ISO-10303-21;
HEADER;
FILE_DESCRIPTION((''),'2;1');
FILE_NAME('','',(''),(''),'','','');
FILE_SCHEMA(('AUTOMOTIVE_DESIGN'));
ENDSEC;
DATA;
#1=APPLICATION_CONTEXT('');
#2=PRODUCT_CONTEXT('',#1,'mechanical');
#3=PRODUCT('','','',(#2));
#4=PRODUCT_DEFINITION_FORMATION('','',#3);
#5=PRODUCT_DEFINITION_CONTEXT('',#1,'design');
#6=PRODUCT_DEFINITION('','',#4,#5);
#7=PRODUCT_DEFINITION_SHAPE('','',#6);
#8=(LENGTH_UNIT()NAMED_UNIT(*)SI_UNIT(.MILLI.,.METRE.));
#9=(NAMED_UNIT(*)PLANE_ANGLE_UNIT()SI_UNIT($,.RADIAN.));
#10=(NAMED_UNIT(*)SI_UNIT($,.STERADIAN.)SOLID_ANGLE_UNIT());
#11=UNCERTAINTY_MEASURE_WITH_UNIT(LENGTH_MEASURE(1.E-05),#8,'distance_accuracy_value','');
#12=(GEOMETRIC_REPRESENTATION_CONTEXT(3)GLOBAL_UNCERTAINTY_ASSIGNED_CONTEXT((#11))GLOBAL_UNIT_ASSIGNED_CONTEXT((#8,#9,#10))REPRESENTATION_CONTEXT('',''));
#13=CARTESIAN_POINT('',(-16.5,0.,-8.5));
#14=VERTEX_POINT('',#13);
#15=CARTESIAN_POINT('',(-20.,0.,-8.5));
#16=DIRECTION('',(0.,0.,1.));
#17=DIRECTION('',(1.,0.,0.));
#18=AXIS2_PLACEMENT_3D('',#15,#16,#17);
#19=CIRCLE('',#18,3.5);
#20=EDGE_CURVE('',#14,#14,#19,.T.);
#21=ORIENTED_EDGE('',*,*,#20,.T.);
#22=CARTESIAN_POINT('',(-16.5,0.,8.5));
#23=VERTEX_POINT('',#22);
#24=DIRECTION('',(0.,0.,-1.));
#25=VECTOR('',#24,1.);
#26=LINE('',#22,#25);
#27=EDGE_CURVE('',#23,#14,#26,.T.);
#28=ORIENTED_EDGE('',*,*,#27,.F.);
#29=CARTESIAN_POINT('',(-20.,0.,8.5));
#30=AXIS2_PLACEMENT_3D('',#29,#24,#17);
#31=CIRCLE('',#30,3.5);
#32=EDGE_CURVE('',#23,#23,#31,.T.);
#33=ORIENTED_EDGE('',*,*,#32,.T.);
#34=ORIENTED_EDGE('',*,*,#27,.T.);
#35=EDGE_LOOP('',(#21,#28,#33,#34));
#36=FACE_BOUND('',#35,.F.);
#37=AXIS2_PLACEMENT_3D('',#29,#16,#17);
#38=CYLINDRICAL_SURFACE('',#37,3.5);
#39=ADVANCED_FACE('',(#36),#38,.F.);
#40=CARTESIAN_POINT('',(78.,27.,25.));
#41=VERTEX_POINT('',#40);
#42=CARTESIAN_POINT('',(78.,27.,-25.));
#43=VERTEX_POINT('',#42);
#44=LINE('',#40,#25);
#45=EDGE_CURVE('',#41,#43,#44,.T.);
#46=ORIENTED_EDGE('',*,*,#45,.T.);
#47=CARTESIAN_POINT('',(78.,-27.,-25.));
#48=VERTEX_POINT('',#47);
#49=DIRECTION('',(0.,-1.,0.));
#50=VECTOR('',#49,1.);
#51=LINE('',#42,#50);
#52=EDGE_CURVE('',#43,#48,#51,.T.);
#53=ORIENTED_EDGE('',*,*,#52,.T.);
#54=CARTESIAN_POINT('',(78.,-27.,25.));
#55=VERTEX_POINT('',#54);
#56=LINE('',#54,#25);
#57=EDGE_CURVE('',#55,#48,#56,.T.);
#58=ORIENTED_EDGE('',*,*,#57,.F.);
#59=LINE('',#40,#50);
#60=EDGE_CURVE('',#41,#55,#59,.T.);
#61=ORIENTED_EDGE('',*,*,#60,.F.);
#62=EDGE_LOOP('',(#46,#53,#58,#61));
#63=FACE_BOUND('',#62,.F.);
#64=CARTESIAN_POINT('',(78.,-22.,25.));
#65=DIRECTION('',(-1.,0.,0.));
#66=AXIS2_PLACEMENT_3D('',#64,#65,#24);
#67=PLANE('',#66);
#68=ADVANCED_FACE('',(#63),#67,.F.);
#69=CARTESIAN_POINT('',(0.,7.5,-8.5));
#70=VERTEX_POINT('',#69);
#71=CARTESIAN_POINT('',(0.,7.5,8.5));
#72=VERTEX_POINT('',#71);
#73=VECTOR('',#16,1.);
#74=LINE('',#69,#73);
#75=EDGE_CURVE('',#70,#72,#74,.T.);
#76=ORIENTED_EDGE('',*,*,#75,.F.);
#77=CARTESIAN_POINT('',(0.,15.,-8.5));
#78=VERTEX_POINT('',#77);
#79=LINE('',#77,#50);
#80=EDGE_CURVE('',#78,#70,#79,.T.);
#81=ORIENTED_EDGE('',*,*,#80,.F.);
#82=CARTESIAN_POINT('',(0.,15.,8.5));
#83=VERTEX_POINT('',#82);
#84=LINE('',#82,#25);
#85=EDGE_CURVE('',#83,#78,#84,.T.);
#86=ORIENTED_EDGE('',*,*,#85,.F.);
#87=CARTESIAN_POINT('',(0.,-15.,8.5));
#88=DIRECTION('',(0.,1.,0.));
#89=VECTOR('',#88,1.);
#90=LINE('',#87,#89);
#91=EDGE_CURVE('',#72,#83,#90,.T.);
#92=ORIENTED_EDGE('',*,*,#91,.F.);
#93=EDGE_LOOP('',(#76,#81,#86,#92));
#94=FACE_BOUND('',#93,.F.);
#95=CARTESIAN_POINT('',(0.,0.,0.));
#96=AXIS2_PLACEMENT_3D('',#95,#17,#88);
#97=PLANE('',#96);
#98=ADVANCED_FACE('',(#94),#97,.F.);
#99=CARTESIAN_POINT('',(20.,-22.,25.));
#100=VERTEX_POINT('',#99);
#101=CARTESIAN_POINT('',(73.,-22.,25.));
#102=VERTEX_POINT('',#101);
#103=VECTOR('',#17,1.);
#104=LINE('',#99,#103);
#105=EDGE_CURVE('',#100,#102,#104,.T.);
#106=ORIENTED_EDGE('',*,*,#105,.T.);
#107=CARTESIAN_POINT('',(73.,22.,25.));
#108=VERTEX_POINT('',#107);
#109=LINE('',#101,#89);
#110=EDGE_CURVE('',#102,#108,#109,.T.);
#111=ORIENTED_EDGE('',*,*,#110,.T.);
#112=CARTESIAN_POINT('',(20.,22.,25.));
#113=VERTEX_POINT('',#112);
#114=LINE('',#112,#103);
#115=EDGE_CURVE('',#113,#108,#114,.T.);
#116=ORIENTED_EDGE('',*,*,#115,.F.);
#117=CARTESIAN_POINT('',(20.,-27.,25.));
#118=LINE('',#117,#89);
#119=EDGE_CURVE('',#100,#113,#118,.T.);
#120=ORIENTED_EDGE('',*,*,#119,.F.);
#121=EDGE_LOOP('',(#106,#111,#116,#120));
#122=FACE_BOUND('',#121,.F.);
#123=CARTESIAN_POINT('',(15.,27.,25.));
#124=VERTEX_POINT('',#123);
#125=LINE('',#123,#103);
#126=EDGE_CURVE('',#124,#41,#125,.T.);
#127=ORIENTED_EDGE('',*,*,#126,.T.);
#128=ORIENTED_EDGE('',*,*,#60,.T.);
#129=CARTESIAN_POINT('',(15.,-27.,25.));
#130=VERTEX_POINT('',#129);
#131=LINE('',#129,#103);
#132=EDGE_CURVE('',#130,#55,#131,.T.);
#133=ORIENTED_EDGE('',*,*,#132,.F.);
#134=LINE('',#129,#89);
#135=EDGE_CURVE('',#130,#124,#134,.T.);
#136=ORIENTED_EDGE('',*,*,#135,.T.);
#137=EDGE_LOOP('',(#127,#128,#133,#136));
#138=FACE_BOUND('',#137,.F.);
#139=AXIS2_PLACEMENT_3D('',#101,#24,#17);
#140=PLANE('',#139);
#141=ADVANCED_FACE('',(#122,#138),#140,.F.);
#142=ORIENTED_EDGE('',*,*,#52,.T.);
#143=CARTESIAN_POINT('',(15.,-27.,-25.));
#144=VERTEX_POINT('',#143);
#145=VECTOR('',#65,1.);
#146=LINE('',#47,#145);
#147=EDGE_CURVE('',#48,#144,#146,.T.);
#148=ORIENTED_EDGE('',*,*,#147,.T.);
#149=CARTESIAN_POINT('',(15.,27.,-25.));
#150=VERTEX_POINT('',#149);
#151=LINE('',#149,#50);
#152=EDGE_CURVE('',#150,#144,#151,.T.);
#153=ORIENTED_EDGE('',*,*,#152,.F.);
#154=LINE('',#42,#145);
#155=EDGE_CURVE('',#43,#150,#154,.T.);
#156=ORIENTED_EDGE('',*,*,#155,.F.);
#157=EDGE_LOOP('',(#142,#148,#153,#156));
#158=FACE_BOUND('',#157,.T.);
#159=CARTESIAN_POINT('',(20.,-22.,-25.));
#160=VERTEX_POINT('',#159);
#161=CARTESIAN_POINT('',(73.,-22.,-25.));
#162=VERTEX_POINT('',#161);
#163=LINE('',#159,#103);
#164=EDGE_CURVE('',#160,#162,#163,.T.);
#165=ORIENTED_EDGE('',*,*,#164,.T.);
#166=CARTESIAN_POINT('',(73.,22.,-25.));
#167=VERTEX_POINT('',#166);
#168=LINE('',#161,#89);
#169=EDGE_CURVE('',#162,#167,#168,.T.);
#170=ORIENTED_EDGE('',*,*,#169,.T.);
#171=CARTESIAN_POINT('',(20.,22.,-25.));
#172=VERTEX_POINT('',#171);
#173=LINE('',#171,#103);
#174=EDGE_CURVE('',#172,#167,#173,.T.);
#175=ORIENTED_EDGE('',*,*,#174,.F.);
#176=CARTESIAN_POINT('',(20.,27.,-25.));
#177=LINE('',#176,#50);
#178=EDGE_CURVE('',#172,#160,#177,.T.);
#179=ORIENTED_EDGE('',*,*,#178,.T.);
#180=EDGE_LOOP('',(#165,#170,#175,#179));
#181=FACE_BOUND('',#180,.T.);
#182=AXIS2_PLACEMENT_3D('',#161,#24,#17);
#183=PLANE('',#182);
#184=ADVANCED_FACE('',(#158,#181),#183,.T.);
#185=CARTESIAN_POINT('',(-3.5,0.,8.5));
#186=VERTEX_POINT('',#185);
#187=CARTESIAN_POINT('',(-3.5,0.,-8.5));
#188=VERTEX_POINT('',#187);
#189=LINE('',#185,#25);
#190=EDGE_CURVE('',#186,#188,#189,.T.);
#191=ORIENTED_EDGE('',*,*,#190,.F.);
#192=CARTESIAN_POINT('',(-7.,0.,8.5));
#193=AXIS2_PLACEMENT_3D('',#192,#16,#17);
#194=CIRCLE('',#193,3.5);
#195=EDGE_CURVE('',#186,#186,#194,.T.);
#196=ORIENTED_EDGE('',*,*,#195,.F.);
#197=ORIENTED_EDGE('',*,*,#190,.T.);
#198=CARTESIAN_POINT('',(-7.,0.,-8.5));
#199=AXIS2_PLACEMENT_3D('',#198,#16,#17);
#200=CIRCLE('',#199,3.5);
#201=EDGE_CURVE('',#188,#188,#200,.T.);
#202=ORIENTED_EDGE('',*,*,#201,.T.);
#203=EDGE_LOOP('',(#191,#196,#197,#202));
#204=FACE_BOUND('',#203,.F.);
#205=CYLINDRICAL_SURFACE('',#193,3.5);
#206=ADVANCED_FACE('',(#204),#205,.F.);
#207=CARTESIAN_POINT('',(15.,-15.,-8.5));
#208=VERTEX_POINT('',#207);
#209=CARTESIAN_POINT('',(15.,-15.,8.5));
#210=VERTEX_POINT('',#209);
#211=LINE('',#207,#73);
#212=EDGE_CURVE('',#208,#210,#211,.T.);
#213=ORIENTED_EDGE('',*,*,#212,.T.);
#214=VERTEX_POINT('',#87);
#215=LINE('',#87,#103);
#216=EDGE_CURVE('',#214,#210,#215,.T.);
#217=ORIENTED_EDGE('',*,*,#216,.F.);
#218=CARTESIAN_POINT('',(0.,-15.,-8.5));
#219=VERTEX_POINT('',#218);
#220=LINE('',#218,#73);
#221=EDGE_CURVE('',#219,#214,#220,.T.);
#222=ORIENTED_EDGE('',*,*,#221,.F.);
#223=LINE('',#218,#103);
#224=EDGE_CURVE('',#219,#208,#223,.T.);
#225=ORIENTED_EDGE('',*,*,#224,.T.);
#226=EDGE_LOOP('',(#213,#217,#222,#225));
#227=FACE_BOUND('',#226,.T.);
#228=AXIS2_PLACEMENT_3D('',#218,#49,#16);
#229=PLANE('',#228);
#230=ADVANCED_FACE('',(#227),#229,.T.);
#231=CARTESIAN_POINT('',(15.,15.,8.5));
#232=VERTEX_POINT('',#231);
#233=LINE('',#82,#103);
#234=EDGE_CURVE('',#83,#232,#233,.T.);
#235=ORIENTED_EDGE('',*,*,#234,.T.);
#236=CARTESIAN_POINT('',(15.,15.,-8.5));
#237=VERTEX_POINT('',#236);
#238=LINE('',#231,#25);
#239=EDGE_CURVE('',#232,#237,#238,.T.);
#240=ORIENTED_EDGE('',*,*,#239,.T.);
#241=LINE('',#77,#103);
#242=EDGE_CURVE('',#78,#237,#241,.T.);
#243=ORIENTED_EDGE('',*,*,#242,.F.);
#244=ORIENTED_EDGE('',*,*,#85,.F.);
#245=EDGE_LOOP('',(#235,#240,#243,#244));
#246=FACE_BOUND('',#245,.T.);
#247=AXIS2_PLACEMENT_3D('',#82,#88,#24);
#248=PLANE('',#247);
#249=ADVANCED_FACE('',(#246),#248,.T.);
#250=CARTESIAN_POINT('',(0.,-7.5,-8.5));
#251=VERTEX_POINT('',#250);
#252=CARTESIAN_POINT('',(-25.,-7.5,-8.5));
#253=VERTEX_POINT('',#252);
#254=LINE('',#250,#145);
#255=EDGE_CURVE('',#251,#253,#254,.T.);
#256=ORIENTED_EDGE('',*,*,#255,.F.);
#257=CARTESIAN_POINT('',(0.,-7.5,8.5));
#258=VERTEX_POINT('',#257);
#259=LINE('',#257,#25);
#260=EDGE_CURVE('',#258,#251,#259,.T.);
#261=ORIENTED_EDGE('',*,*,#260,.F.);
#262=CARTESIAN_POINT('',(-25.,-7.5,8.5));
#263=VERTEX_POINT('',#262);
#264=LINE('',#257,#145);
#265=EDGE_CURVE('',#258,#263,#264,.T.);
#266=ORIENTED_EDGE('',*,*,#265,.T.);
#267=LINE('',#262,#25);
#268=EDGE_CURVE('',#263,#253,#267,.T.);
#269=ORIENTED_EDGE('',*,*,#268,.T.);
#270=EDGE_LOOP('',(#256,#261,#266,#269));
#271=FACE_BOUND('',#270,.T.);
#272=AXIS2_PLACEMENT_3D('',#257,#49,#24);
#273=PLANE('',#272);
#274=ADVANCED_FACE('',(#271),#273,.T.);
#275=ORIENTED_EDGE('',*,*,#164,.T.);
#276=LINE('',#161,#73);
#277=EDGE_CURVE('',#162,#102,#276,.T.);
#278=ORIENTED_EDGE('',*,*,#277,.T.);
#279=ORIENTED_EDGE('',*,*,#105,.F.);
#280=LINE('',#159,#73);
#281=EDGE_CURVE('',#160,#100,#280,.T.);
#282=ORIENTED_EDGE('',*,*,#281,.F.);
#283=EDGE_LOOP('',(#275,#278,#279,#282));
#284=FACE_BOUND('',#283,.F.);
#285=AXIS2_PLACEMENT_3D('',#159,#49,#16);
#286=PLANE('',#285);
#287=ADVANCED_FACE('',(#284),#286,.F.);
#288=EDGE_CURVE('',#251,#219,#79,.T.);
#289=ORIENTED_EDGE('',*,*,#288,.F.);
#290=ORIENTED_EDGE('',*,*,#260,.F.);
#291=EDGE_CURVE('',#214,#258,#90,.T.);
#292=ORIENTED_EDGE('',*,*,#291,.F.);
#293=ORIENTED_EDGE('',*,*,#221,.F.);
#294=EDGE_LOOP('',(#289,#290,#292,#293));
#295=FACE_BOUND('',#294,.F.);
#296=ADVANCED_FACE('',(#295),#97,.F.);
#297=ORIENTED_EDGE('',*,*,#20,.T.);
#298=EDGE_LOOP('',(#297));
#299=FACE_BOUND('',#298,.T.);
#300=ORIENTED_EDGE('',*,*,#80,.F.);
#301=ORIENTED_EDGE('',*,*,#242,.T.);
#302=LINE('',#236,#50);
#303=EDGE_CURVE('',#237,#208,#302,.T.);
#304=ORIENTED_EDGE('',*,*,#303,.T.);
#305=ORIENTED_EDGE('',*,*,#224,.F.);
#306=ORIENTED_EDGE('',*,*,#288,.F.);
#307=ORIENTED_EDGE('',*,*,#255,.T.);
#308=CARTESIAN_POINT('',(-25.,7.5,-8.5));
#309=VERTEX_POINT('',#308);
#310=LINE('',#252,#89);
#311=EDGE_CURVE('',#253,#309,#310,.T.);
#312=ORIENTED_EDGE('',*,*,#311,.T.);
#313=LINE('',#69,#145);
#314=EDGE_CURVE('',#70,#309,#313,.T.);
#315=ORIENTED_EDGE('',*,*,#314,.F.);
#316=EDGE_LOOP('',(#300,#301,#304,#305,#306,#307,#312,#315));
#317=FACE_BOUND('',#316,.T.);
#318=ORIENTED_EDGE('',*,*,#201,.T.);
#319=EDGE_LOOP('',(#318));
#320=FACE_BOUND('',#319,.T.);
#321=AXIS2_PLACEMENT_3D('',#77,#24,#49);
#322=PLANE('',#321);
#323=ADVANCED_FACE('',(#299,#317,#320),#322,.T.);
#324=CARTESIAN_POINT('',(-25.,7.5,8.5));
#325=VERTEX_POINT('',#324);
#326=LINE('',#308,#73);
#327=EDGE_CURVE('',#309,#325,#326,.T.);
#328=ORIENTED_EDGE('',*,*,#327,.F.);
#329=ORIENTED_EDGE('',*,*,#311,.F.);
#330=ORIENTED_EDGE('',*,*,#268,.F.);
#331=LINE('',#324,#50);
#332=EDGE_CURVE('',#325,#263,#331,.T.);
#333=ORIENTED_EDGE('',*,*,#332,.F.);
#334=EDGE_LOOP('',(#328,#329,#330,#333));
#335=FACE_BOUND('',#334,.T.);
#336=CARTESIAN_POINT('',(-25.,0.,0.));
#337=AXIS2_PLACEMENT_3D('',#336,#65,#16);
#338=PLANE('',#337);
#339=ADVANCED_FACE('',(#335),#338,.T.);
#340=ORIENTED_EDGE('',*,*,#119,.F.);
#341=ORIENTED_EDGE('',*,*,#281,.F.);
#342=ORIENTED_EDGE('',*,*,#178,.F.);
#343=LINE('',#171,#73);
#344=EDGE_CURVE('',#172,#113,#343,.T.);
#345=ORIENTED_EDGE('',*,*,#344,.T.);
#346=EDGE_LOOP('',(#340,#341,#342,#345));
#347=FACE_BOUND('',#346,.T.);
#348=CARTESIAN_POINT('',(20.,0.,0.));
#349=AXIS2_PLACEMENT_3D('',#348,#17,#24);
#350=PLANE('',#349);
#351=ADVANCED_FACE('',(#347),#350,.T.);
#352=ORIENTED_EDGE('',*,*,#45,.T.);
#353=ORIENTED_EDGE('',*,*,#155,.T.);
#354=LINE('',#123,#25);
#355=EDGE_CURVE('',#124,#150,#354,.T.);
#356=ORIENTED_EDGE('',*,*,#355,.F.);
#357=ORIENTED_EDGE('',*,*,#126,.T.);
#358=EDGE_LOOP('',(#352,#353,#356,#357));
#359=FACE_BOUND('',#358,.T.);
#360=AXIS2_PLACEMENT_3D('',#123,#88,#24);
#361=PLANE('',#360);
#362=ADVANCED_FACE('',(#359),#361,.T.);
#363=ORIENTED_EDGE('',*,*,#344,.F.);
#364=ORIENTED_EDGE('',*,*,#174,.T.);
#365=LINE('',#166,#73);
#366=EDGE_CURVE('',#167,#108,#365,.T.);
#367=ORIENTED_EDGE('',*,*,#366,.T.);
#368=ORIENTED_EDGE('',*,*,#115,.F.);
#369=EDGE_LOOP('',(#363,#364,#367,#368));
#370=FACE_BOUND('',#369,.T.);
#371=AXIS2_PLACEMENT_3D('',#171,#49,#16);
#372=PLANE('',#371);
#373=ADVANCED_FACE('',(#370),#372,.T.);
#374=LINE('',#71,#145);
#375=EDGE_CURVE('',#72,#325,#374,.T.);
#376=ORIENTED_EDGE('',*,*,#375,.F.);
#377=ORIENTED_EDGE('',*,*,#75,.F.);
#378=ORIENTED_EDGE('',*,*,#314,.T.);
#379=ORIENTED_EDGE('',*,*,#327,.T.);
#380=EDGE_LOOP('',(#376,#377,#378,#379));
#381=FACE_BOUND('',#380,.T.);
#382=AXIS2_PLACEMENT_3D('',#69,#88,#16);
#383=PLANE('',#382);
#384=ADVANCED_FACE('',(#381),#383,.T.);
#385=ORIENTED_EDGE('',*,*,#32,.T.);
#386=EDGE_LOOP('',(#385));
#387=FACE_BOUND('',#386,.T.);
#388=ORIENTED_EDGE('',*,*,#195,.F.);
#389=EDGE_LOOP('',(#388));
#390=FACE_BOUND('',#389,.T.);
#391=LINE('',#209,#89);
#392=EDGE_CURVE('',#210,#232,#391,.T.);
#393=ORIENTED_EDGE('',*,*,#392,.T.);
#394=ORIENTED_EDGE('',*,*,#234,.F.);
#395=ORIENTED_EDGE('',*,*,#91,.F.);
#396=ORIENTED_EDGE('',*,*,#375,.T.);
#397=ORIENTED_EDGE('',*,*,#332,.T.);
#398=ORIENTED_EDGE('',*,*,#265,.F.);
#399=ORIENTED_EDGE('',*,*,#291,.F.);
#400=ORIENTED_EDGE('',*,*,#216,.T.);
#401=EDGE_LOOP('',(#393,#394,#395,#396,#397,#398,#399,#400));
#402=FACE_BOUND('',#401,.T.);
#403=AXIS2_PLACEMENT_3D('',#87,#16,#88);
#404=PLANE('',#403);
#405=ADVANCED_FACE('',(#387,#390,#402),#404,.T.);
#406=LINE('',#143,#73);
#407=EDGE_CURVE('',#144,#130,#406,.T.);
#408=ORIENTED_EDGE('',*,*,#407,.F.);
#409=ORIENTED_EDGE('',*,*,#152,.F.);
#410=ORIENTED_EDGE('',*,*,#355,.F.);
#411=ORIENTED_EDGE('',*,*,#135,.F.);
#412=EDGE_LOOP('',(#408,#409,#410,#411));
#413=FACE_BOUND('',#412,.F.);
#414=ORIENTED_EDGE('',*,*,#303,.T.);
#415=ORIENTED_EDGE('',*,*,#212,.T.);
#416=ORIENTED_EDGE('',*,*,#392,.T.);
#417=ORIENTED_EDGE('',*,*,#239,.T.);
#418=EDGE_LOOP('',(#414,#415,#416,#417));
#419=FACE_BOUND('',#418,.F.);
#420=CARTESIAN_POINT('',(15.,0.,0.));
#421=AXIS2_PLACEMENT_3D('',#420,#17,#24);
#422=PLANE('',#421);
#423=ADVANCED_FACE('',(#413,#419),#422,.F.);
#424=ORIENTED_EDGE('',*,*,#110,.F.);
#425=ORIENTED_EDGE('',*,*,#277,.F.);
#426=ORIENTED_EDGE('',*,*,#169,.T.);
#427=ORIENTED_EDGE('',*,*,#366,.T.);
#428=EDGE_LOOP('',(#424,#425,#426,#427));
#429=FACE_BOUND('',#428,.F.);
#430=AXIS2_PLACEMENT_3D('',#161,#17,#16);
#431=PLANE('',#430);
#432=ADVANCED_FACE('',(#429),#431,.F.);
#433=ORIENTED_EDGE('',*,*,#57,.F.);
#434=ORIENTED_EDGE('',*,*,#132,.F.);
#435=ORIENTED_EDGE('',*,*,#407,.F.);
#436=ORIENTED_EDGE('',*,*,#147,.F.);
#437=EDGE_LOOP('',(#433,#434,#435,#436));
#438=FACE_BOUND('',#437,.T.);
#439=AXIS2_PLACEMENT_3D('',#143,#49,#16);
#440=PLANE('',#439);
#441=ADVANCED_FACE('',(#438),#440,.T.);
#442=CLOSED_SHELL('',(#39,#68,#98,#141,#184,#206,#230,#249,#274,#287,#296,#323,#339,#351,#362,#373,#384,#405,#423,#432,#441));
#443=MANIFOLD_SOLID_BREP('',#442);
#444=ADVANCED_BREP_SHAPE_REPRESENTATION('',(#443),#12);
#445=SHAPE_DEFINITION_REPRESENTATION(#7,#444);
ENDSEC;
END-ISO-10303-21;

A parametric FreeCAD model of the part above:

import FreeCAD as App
import Part
import Sketcher


def add_polygon(sketch, points):
    """Adds a closed chain of lines whose ends are joined by coincident constraints."""
    first, n = sketch.GeometryCount, len(points)
    for a, b in zip(points, points[1:] + points[:1]):
        sketch.addGeometry(Part.LineSegment(App.Vector(*a, 0), App.Vector(*b, 0)), False)
    for i in range(n):
        sketch.addConstraint(Sketcher.Constraint("Coincident", first + i, 2, first + (i + 1) % n, 1))

doc = App.newDocument("Part")
body = doc.addObject("PartDesign::Body", "Body")

# Sketch on YZ plane
sketch1 = body.newObject("Sketcher::SketchObject", "Sketch")
sketch1.AttachmentSupport = (doc.getObject("YZ_Plane"), [""])
sketch1.MapMode = "FlatFace"
add_polygon(sketch1, [(15, 8), (-15, 8), (-15, -8), (15, -8)])  # lines 0-3
sketch1.addConstraint([
    Sketcher.Constraint("Horizontal", 0),
    Sketcher.Constraint("Vertical", 1),
    Sketcher.Constraint("Horizontal", 2),
    Sketcher.Constraint("Vertical", 3),
    Sketcher.Constraint("Symmetric", 0, 2, 2, 2, -1, 1),
    Sketcher.Constraint("DistanceX", 0, 2, 0, 1, 30.0),
    Sketcher.Constraint("DistanceY", 1, 2, 1, 1, 17.0),
])
pad1 = body.newObject("PartDesign::Pad", "Pad")
pad1.Profile = sketch1
pad1.Length = 15

# Sketch on YZ plane
sketch2 = body.newObject("Sketcher::SketchObject", "Sketch001")
sketch2.AttachmentSupport = (doc.getObject("YZ_Plane"), [""])
sketch2.MapMode = "FlatFace"
add_polygon(sketch2, [(8, 8), (8, -8), (-8, -8), (-8, 8)])  # lines 0-3
sketch2.addConstraint([
    Sketcher.Constraint("Vertical", 0),
    Sketcher.Constraint("Horizontal", 1),
    Sketcher.Constraint("Vertical", 2),
    Sketcher.Constraint("Horizontal", 3),
    Sketcher.Constraint("Symmetric", 0, 2, 2, 2, -1, 1),
    Sketcher.Constraint("DistanceX", 1, 2, 1, 1, 15.0),
    Sketcher.Constraint("DistanceY", 0, 2, 0, 1, 17.0),
])
pad2 = body.newObject("PartDesign::Pad", "Pad001")
pad2.Profile = sketch2
pad2.Length = 25
pad2.Reversed = True

# Sketch on YZ plane
sketch3 = body.newObject("Sketcher::SketchObject", "Sketch002")
sketch3.AttachmentSupport = (doc.getObject("YZ_Plane"), [""])
sketch3.MapMode = "FlatFace"
sketch3.AttachmentOffset = App.Placement(App.Vector(0, 0, 15), App.Rotation())
add_polygon(sketch3, [(27, -25), (27, 25), (-27, 25), (-27, -25)])  # lines 0-3
sketch3.addConstraint([
    Sketcher.Constraint("Vertical", 0),
    Sketcher.Constraint("Horizontal", 1),
    Sketcher.Constraint("Vertical", 2),
    Sketcher.Constraint("Horizontal", 3),
    Sketcher.Constraint("Symmetric", 0, 2, 2, 2, -1, 1),
    Sketcher.Constraint("DistanceX", 1, 2, 1, 1, 54.0),
    Sketcher.Constraint("DistanceY", 0, 1, 0, 2, 50.0),
])
pad3 = body.newObject("PartDesign::Pad", "Pad002")
pad3.Profile = sketch3
pad3.Length = 5

# Sketch on YZ plane
sketch4 = body.newObject("Sketcher::SketchObject", "Sketch003")
sketch4.AttachmentSupport = (doc.getObject("YZ_Plane"), [""])
sketch4.MapMode = "FlatFace"
sketch4.AttachmentOffset = App.Placement(App.Vector(0, 0, 20), App.Rotation())
add_polygon(sketch4, [(27, -25), (27, 25), (22, 25), (22, -25)])  # lines 0-3
add_polygon(sketch4, [(-22, -25), (-22, 25), (-27, 25), (-27, -25)])  # lines 4-7
sketch4.addConstraint([
    Sketcher.Constraint("Vertical", 0),
    Sketcher.Constraint("Horizontal", 1),
    Sketcher.Constraint("Vertical", 2),
    Sketcher.Constraint("Horizontal", 3),
    Sketcher.Constraint("Vertical", 4),
    Sketcher.Constraint("Horizontal", 5),
    Sketcher.Constraint("Vertical", 6),
    Sketcher.Constraint("Horizontal", 7),
    Sketcher.Constraint("Symmetric", 2, 2, 4, 2, -1, 1),
    Sketcher.Constraint("Symmetric", 0, 2, 6, 2, -1, 1),
    Sketcher.Constraint("Horizontal", 1, 2, 4, 2),
    Sketcher.Constraint("DistanceX", 1, 2, 1, 1, 5.0),
    Sketcher.Constraint("DistanceY", 0, 1, 0, 2, 50.0),
    Sketcher.Constraint("DistanceX", -1, 1, 0, 2, 27.0),
])
pad4 = body.newObject("PartDesign::Pad", "Pad003")
pad4.Profile = sketch4
pad4.Length = 58

# Sketch on XZ plane
sketch5 = body.newObject("Sketcher::SketchObject", "Sketch004")
sketch5.AttachmentSupport = (doc.getObject("XZ_Plane"), [""])
sketch5.MapMode = "FlatFace"
sketch5.AttachmentOffset = App.Placement(App.Vector(0, 0, 22), App.Rotation())
add_polygon(sketch5, [(78, -25), (73, -25), (73, 25), (78, 25)])  # lines 0-3
sketch5.addConstraint([
    Sketcher.Constraint("Horizontal", 0),
    Sketcher.Constraint("Vertical", 1),
    Sketcher.Constraint("Horizontal", 2),
    Sketcher.Constraint("Vertical", 3),
    Sketcher.Constraint("DistanceX", 0, 2, 0, 1, 5.0),
    Sketcher.Constraint("DistanceY", 1, 1, 1, 2, 50.0),
    Sketcher.Constraint("DistanceX", -1, 1, 0, 2, 73.0),
    Sketcher.Constraint("DistanceY", 0, 2, -1, 1, 25.0),
])
pad5 = body.newObject("PartDesign::Pad", "Pad004")
pad5.Profile = sketch5
pad5.Length = 45
pad5.Reversed = True

# Sketch on XY plane
sketch6 = body.newObject("Sketcher::SketchObject", "Sketch005")
sketch6.AttachmentSupport = (doc.getObject("XY_Plane"), [""])
sketch6.MapMode = "FlatFace"
sketch6.AttachmentOffset = App.Placement(App.Vector(0, 0, 8.5), App.Rotation())
sketch6.addGeometry([
    Part.Circle(App.Vector(-7, 0, 0), App.Vector(0, 0, 1), 3.5),
    Part.Circle(App.Vector(-20, 0, 0), App.Vector(0, 0, 1), 3.5),
], False)
sketch6.addConstraint([
    Sketcher.Constraint("Equal", 0, 1),
    Sketcher.Constraint("PointOnObject", 0, 3, -1),
    Sketcher.Constraint("PointOnObject", 1, 3, -1),
    Sketcher.Constraint("Diameter", 0, 7.0),
    Sketcher.Constraint("DistanceX", 0, 3, -1, 1, 7.0),
    Sketcher.Constraint("DistanceX", 1, 3, -1, 1, 20.0),
])
pocket1 = body.newObject("PartDesign::Pocket", "Pocket")
pocket1.Profile = sketch6
pocket1.Type = "ThroughAll"

doc.recompute()
